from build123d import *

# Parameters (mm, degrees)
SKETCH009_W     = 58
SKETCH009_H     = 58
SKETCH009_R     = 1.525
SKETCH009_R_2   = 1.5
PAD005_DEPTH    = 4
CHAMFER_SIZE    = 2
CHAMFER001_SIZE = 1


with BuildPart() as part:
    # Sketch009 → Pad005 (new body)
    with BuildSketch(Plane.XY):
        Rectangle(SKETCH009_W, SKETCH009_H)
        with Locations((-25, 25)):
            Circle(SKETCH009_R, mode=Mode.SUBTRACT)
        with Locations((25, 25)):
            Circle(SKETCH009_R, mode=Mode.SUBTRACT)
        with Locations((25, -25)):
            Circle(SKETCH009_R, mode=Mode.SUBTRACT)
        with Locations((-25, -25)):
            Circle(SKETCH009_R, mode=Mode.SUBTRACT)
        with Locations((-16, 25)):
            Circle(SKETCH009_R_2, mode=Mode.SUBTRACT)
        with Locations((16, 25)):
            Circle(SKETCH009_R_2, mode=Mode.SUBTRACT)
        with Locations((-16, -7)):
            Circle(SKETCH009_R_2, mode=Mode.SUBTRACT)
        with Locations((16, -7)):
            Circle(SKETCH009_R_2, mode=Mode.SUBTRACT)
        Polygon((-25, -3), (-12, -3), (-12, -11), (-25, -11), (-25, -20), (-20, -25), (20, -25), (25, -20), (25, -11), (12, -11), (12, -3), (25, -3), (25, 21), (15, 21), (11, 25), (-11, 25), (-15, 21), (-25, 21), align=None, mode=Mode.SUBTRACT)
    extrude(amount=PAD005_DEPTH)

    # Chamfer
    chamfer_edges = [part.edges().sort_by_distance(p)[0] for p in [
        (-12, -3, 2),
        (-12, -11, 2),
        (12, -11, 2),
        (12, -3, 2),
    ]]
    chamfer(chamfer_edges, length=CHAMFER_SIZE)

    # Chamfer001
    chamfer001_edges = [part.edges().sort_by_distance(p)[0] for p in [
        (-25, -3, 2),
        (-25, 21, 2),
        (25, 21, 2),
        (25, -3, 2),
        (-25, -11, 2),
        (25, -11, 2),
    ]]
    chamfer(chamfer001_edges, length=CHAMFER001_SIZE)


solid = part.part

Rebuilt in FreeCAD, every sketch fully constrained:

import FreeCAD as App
import Part
import Sketcher

V = App.Vector


def edges_at(feature, points):
    """Names of the edges that pass closest to the given points."""
    edges = feature.Shape.Edges
    near = lambda p: min(range(len(edges)), key=lambda i: edges[i].distToShape(Part.Vertex(*p))[0])
    return sorted({f"Edge{near(p) + 1}" for p in points})

doc = App.newDocument("Part")
body = doc.addObject("PartDesign::Body", "Body")

# Sketch on XY plane
sketch1 = body.newObject("Sketcher::SketchObject", "Sketch")
sketch1.AttachmentSupport = (doc.getObject("XY_Plane"), [""])
sketch1.MapMode = "FlatFace"
sketch1.addGeometry([
    Part.LineSegment(V(-29, 29, 0), V(-29, -29, 0)),  # 0
    Part.LineSegment(V(-29, -29, 0), V(29, -29, 0)),  # 1
    Part.LineSegment(V(29, -29, 0), V(29, 29, 0)),  # 2
    Part.LineSegment(V(29, 29, 0), V(-29, 29, 0)),  # 3
    Part.Circle(V(-25, -25, 0), V(0, 0, 1), 1.5),  # 4
    Part.Circle(V(-16, -7, 0), V(0, 0, 1), 1.5),  # 5
    Part.Circle(V(25, -25, 0), V(0, 0, 1), 1.5),  # 6
    Part.Circle(V(16, -7, 0), V(0, 0, 1), 1.5),  # 7
    Part.Circle(V(-25, 25, 0), V(0, 0, 1), 1.5),  # 8
    Part.Circle(V(-16, 25, 0), V(0, 0, 1), 1.5),  # 9
    Part.LineSegment(V(-12, -3, 0), V(-25, -3, 0)),  # 10
    Part.LineSegment(V(-25, -3, 0), V(-25, 21, 0)),  # 11
    Part.LineSegment(V(-25, 21, 0), V(-15, 21, 0)),  # 12
    Part.LineSegment(V(-15, 21, 0), V(-11, 25, 0)),  # 13
    Part.LineSegment(V(-11, 25, 0), V(11, 25, 0)),  # 14
    Part.LineSegment(V(11, 25, 0), V(15, 21, 0)),  # 15
    Part.LineSegment(V(15, 21, 0), V(25, 21, 0)),  # 16
    Part.LineSegment(V(25, 21, 0), V(25, -3, 0)),  # 17
    Part.LineSegment(V(25, -3, 0), V(12, -3, 0)),  # 18
    Part.LineSegment(V(12, -3, 0), V(12, -11, 0)),  # 19
    Part.LineSegment(V(12, -11, 0), V(25, -11, 0)),  # 20
    Part.LineSegment(V(25, -11, 0), V(25, -20, 0)),  # 21
    Part.LineSegment(V(25, -20, 0), V(20, -25, 0)),  # 22
    Part.LineSegment(V(20, -25, 0), V(-20, -25, 0)),  # 23
    Part.LineSegment(V(-20, -25, 0), V(-25, -20, 0)),  # 24
    Part.LineSegment(V(-25, -20, 0), V(-25, -11, 0)),  # 25
    Part.LineSegment(V(-25, -11, 0), V(-12, -11, 0)),  # 26
    Part.LineSegment(V(-12, -11, 0), V(-12, -3, 0)),  # 27
    Part.Circle(V(16, 25, 0), V(0, 0, 1), 1.5),  # 28
    Part.Circle(V(25, 25, 0), V(0, 0, 1), 1.5),  # 29
], False)
sketch1.addConstraint([
    Sketcher.Constraint("Coincident", 0, 2, 1, 1),
    Sketcher.Constraint("Coincident", 1, 2, 2, 1),
    Sketcher.Constraint("Coincident", 2, 2, 3, 1),
    Sketcher.Constraint("Coincident", 3, 2, 0, 1),
    Sketcher.Constraint("Coincident", 10, 2, 11, 1),
    Sketcher.Constraint("Coincident", 11, 2, 12, 1),
    Sketcher.Constraint("Coincident", 12, 2, 13, 1),
    Sketcher.Constraint("Coincident", 13, 2, 14, 1),
    Sketcher.Constraint("Coincident", 14, 2, 15, 1),
    Sketcher.Constraint("Coincident", 15, 2, 16, 1),
    Sketcher.Constraint("Coincident", 16, 2, 17, 1),
    Sketcher.Constraint("Coincident", 17, 2, 18, 1),
    Sketcher.Constraint("Coincident", 18, 2, 19, 1),
    Sketcher.Constraint("Coincident", 19, 2, 20, 1),
    Sketcher.Constraint("Coincident", 20, 2, 21, 1),
    Sketcher.Constraint("Coincident", 21, 2, 22, 1),
    Sketcher.Constraint("Coincident", 22, 2, 23, 1),
    Sketcher.Constraint("Coincident", 23, 2, 24, 1),
    Sketcher.Constraint("Coincident", 24, 2, 25, 1),
    Sketcher.Constraint("Coincident", 25, 2, 26, 1),
    Sketcher.Constraint("Coincident", 26, 2, 27, 1),
    Sketcher.Constraint("Coincident", 27, 2, 10, 1),
    Sketcher.Constraint("Vertical", 0),
    Sketcher.Constraint("Horizontal", 1),
    Sketcher.Constraint("Vertical", 2),
    Sketcher.Constraint("Horizontal", 3),
    Sketcher.Constraint("Horizontal", 10),
    Sketcher.Constraint("Vertical", 11),
    Sketcher.Constraint("Horizontal", 12),
    Sketcher.Constraint("Horizontal", 14),
    Sketcher.Constraint("Horizontal", 16),
    Sketcher.Constraint("Vertical", 17),
    Sketcher.Constraint("Horizontal", 18),
    Sketcher.Constraint("Vertical", 19),
    Sketcher.Constraint("Horizontal", 20),
    Sketcher.Constraint("Vertical", 21),
    Sketcher.Constraint("Horizontal", 23),
    Sketcher.Constraint("Vertical", 25),
    Sketcher.Constraint("Horizontal", 26),
    Sketcher.Constraint("Vertical", 27),
    Sketcher.Constraint("Equal", 4, 6),
    Sketcher.Constraint("Equal", 5, 7),
    Sketcher.Constraint("Equal", 6, 8),
    Sketcher.Constraint("Equal", 7, 9),
    Sketcher.Constraint("Equal", 9, 28),
    Sketcher.Constraint("Equal", 8, 29),
    Sketcher.Constraint("Symmetric", 6, 3, 8, 3, -1, 1),
    Sketcher.Constraint("Symmetric", 4, 3, 29, 3, -1, 1),
    Sketcher.Constraint("Symmetric", 0, 2, 2, 2, -1, 1),
    Sketcher.Constraint("Symmetric", 4, 3, 6, 3, -2),
    Sketcher.Constraint("Symmetric", 5, 3, 7, 3, -2),
    Sketcher.Constraint("Symmetric", 9, 3, 28, 3, -2),
    Sketcher.Constraint("Symmetric", 12, 2, 15, 2, -2),
    Sketcher.Constraint("Symmetric", 10, 2, 17, 2, -2),
    Sketcher.Constraint("Symmetric", 21, 2, 24, 2, -2),
    Sketcher.Constraint("Symmetric", 19, 2, 26, 2, -2),
    Sketcher.Constraint("Perpendicular", 13, 15),
    Sketcher.Constraint("Perpendicular", 15, 22),
    Sketcher.Constraint("Perpendicular", 22, 24),
    Sketcher.Constraint("Horizontal", 8, 3, 9, 3),
    Sketcher.Constraint("Horizontal", 29, 3, 13, 2),
    Sketcher.Constraint("Horizontal", 6, 3, 22, 2),
    Sketcher.Constraint("Vertical", 5, 3, 9, 3),
    Sketcher.Constraint("Vertical", 8, 3, 10, 2),
    Sketcher.Constraint("Vertical", 17, 2, 20, 2),
    Sketcher.Constraint("Equal", 3, 0),
    Sketcher.Constraint("Equal", 13, 15),
    Sketcher.Constraint("Diameter", 5, 3.0),
    Sketcher.Constraint("Diameter", 4, 3.05),
    Sketcher.Constraint("DistanceX", 1, 1, 1, 2, 58.0),
    Sketcher.Constraint("DistanceX", 10, 2, 10, 1, 13.0),
    Sketcher.Constraint("DistanceX", 12, 1, 12, 2, 10.0),
    Sketcher.Constraint("DistanceX", 14, 1, 14, 2, 22.0),
    Sketcher.Constraint("DistanceX", 23, 2, 23, 1, 40.0),
    Sketcher.Constraint("DistanceY", 11, 1, 11, 2, 24.0),
    Sketcher.Constraint("DistanceY", 19, 2, 19, 1, 8.0),
    Sketcher.Constraint("DistanceY", 21, 2, 21, 1, 9.0),
    Sketcher.Constraint("DistanceX", 4, 3, -1, 1, 25.0),
    Sketcher.Constraint("DistanceX", 5, 3, -1, 1, 16.0),
    Sketcher.Constraint("DistanceY", 5, 3, -1, 1, 7.0),
])
pad1 = body.newObject("PartDesign::Pad", "Pad")
pad1.Profile = sketch1
pad1.Length = 4
doc.recompute()

chamfer = body.newObject("PartDesign::Chamfer", "Chamfer")
chamfer.Base = (pad1, edges_at(pad1, [
    (-12, -3, 2),
    (-12, -11, 2),
    (12, -11, 2),
    (12, -3, 2),
]))
chamfer.Size = 2
doc.recompute()

chamfer2 = body.newObject("PartDesign::Chamfer", "Chamfer001")
chamfer2.Base = (chamfer, edges_at(chamfer, [
    (-25, -3, 2),
    (-25, 21, 2),
    (25, 21, 2),
    (25, -3, 2),
    (-25, -11, 2),
    (25, -11, 2),
]))
chamfer2.Size = 1

doc.recompute()
